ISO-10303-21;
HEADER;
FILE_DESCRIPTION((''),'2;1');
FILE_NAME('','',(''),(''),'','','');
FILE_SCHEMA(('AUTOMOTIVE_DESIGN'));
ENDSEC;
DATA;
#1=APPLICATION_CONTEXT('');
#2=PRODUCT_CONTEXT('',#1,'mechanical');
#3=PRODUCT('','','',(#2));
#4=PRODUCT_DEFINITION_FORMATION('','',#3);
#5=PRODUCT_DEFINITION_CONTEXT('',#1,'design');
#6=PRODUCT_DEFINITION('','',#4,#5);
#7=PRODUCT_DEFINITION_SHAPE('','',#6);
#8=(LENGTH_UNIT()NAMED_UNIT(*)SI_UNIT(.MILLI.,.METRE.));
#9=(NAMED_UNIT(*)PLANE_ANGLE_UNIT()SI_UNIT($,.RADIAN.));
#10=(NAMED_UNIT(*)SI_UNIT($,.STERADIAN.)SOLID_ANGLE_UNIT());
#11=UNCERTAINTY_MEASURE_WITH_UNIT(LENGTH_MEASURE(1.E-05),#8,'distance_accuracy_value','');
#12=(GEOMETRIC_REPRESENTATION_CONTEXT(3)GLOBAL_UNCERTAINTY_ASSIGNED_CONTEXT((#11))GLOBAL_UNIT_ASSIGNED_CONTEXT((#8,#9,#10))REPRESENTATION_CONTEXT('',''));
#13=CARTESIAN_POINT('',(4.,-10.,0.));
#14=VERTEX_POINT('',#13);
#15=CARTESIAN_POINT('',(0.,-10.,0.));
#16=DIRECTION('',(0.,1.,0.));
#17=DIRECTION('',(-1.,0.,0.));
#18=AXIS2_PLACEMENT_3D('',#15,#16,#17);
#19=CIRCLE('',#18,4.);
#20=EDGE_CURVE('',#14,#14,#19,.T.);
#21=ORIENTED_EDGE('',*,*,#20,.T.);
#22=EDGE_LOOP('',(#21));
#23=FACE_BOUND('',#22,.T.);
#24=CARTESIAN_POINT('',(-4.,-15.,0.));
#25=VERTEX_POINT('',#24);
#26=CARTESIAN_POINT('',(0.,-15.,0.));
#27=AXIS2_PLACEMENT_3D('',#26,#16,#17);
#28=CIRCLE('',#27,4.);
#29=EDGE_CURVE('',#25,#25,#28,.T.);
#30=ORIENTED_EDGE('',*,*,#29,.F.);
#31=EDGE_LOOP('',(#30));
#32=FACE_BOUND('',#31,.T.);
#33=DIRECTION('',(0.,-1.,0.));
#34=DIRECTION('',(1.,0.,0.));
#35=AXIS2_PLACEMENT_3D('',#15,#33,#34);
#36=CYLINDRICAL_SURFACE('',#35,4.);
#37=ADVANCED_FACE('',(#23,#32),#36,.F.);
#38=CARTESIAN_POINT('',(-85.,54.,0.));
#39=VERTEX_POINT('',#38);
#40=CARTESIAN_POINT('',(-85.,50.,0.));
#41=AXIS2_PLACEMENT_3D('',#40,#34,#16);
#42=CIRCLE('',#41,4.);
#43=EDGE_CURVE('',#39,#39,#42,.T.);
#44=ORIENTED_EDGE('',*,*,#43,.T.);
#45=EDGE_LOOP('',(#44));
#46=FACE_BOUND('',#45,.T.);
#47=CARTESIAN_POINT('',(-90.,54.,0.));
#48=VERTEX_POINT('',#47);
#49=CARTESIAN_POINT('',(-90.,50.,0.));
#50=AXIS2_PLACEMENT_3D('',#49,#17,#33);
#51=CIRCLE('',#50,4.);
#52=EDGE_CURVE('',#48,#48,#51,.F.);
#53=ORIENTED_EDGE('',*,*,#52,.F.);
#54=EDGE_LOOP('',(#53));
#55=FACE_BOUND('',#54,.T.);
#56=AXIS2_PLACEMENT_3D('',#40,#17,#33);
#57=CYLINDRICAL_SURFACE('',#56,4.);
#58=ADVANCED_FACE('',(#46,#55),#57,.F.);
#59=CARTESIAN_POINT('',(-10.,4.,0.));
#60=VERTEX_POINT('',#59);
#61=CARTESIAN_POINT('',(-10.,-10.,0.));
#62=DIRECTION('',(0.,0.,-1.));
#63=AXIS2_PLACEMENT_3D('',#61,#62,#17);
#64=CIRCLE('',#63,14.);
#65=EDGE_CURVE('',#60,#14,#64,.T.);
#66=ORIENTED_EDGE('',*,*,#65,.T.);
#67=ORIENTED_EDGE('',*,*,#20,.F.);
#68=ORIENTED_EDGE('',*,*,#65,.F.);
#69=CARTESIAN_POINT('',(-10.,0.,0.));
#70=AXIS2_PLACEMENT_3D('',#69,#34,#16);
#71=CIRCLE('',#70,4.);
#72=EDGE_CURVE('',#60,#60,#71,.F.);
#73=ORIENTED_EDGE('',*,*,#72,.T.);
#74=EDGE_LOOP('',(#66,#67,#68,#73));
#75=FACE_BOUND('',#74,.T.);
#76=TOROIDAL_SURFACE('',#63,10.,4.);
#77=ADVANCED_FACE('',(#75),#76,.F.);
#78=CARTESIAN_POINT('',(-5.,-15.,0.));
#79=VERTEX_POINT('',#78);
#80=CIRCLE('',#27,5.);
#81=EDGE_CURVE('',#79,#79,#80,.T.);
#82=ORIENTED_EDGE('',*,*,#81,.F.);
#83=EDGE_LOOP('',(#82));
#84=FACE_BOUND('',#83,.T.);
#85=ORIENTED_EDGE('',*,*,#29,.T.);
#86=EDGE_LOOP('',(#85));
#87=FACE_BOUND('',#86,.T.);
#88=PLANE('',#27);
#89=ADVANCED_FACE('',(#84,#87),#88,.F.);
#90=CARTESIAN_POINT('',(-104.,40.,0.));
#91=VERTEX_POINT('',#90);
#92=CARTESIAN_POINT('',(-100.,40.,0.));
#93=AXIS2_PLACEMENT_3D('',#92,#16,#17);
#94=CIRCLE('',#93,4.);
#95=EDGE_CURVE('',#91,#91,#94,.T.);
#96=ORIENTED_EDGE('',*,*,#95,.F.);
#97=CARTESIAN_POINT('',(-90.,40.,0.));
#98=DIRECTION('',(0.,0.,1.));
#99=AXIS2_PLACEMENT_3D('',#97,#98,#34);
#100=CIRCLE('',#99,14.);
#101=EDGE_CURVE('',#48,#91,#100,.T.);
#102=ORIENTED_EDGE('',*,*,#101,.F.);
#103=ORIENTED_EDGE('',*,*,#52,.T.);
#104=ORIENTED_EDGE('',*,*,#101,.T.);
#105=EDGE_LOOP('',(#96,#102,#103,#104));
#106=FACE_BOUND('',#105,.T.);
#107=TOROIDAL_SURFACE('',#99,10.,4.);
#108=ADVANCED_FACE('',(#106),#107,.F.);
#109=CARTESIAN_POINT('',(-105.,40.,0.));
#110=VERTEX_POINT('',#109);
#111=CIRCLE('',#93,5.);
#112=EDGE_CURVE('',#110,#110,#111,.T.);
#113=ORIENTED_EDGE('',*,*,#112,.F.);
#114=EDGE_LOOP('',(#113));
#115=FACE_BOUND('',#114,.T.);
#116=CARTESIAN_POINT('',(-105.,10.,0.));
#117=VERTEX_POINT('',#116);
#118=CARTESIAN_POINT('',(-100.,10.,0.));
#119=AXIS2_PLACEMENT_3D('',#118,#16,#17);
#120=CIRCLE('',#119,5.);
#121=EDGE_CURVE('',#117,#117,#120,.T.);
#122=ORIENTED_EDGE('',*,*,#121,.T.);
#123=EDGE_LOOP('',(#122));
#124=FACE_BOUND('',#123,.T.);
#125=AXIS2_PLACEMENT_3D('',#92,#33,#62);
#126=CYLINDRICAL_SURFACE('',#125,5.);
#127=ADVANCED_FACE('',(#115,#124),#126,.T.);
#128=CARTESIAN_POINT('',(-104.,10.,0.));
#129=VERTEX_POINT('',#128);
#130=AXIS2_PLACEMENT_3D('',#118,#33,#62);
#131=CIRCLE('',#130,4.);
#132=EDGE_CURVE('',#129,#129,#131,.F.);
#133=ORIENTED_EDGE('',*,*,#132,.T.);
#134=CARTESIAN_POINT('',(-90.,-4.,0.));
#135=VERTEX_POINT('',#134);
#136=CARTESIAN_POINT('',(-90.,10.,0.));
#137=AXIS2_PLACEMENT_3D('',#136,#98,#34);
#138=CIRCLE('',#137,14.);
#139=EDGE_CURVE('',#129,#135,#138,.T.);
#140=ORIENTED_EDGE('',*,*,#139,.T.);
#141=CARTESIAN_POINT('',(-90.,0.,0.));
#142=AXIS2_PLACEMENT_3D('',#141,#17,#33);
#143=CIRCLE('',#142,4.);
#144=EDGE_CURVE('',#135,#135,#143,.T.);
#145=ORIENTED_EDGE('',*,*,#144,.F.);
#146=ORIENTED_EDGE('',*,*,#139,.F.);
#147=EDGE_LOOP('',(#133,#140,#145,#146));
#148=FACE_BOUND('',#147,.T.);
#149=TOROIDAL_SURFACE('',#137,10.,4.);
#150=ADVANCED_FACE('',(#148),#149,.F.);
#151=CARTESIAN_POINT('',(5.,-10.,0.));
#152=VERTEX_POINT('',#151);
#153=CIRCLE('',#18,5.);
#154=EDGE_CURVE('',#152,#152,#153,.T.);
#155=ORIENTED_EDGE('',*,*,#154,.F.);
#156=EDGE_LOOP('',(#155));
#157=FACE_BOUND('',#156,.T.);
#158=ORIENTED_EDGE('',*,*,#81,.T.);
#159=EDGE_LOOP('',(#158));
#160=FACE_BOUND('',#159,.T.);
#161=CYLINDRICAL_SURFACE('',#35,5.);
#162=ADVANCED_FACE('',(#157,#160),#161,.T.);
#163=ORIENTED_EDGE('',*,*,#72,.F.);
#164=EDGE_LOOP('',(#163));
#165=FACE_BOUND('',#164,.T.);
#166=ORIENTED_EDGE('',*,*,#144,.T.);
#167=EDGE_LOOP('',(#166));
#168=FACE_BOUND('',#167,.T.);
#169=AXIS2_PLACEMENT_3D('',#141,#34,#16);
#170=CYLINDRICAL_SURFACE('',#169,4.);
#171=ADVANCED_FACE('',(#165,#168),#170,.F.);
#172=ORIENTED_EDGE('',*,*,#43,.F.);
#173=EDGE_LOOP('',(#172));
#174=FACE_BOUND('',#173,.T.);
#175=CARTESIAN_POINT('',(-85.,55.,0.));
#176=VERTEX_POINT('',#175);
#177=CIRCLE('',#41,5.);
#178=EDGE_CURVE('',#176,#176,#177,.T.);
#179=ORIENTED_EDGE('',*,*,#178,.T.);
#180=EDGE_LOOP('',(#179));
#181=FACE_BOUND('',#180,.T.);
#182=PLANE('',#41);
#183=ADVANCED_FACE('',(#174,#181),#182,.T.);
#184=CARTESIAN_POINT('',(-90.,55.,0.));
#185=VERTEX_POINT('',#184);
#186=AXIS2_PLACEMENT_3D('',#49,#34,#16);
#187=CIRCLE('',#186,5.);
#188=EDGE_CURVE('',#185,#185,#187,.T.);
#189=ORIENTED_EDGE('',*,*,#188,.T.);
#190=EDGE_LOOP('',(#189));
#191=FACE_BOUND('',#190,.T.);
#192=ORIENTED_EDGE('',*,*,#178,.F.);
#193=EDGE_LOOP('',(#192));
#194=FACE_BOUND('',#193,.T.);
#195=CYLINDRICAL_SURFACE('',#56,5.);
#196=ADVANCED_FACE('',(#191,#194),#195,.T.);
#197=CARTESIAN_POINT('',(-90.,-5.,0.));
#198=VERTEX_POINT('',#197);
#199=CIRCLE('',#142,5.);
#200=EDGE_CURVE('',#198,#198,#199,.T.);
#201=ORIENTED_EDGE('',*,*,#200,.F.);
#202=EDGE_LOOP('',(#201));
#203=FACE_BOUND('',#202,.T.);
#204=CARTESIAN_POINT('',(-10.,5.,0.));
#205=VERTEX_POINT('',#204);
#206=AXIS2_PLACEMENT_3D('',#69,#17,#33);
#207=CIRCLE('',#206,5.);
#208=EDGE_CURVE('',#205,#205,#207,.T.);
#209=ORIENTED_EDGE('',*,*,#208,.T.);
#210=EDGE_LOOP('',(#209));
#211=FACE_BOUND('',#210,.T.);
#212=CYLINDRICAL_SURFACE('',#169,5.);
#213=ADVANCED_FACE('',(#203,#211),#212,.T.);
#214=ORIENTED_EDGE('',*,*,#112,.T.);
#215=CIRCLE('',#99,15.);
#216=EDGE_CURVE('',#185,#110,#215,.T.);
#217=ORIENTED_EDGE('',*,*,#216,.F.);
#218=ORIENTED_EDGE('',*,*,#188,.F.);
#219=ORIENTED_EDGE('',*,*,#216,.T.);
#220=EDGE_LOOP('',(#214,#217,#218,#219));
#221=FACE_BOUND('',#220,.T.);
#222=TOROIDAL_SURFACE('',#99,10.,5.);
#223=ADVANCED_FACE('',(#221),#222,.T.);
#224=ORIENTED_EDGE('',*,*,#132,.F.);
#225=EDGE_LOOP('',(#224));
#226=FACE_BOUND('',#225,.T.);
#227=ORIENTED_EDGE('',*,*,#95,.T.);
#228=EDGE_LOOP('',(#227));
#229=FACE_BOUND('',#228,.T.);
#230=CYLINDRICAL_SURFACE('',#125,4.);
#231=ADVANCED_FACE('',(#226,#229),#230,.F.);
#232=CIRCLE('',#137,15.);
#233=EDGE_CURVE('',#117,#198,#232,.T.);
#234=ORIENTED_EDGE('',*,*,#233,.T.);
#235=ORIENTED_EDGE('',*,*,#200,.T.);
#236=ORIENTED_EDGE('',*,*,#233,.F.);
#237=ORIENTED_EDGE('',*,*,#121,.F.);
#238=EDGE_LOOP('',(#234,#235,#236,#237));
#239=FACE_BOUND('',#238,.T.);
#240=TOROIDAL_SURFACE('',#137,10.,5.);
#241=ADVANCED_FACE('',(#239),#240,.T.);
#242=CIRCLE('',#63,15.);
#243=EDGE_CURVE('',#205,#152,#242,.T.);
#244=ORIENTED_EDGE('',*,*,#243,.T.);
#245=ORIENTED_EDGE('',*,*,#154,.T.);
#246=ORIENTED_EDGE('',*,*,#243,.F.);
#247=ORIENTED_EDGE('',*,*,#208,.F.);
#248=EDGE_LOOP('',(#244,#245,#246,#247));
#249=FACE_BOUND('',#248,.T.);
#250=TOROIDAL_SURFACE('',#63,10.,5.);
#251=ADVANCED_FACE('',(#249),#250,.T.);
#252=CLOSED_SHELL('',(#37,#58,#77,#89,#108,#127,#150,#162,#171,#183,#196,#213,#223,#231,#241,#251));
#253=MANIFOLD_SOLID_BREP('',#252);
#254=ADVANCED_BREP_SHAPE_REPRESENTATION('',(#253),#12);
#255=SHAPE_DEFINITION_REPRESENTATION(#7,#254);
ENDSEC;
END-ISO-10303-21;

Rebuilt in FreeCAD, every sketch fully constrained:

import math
import FreeCAD as App
import Part
import Sketcher

V = App.Vector
Q = App.Units.Quantity

doc = App.newDocument("Part")
body = doc.addObject("PartDesign::Body", "Body")

sketch1 = body.newObject("Sketcher::SketchObject", "Sketch")
sketch1.AttachmentSupport = (doc.getObject("YZ_Plane"), [""])
sketch1.MapMode = "FlatFace"
sketch1.AttachmentOffset = App.Placement(V(0, 0, -85), App.Rotation())
sketch1.addGeometry([
    Part.Circle(V(50, 0, 0), V(0, 0, 1), 5),
    Part.Circle(V(50, 0, 0), V(0, 0, 1), 4),
], False)
sketch1.addConstraint([
    Sketcher.Constraint("Coincident", 1, 3, 0, 3),
    Sketcher.Constraint("PointOnObject", 0, 3, -1),
    Sketcher.Constraint("Diameter", 0, Q("10 mm")),
    Sketcher.Constraint("Diameter", 1, Q("8 mm")),
    Sketcher.Constraint("DistanceX", -1, 1, 0, 3, Q("50 mm")),
])

sketch2 = body.newObject("Sketcher::SketchObject", "Sketch001")
sketch2.AttachmentSupport = (doc.getObject("XY_Plane"), [""])
sketch2.MapMode = "FlatFace"
sketch2.addGeometry([
    Part.LineSegment(V(-85, 50, 0), V(-90, 50, 0)),
    Part.ArcOfCircle(Part.Circle(V(-90, 40, 0), V(0, 0, 1), 10), math.radians(90), math.radians(180)),
    Part.LineSegment(V(-100, 40, 0), V(-100, 10, 0)),
    Part.ArcOfCircle(Part.Circle(V(-90, 10, 0), V(0, 0, 1), 10), math.radians(180), math.radians(270)),
    Part.LineSegment(V(-90, 0, 0), V(-10, 0, 0)),
    Part.ArcOfCircle(Part.Circle(V(-10, -10, 0), V(0, 0, 1), 10), math.radians(0), math.radians(90)),
    Part.LineSegment(V(0, -10, 0), V(0, -15, 0)),
], False)
sketch2.addConstraint([
    Sketcher.Constraint("Tangent", 0, 2, 1, 1),
    Sketcher.Constraint("Tangent", 1, 2, 2, 1),
    Sketcher.Constraint("Tangent", 2, 2, 3, 1),
    Sketcher.Constraint("Tangent", 3, 2, 4, 1),
    Sketcher.Constraint("Tangent", 4, 2, 5, 2),
    Sketcher.Constraint("Tangent", 5, 1, 6, 1),
    Sketcher.Constraint("Horizontal", 0),
    Sketcher.Constraint("Vertical", 2),
    Sketcher.Constraint("Horizontal", 4),
    Sketcher.Constraint("Vertical", 6),
    Sketcher.Constraint("Equal", 1, 3),
    Sketcher.Constraint("Equal", 3, 5),
    Sketcher.Constraint("PointOnObject", 3, 2, -1),
    Sketcher.Constraint("PointOnObject", 5, 1, -2),
    Sketcher.Constraint("Equal", 0, 6),
    Sketcher.Constraint("Radius", 1, Q("10 mm")),
    Sketcher.Constraint("DistanceX", 0, 2, 0, 1, Q("5 mm")),
    Sketcher.Constraint("DistanceX", 4, 1, 4, 2, Q("80 mm")),
    Sketcher.Constraint("DistanceY", 2, 2, 2, 1, Q("30 mm")),
])
doc.recompute()

additivepipe = body.newObject("PartDesign::AdditivePipe", "AdditivePipe")
additivepipe.Profile = sketch1
additivepipe.Spine = (sketch2, ["Edge1", "Edge2", "Edge3", "Edge4", "Edge5", "Edge6", "Edge7"])

doc.recompute()
